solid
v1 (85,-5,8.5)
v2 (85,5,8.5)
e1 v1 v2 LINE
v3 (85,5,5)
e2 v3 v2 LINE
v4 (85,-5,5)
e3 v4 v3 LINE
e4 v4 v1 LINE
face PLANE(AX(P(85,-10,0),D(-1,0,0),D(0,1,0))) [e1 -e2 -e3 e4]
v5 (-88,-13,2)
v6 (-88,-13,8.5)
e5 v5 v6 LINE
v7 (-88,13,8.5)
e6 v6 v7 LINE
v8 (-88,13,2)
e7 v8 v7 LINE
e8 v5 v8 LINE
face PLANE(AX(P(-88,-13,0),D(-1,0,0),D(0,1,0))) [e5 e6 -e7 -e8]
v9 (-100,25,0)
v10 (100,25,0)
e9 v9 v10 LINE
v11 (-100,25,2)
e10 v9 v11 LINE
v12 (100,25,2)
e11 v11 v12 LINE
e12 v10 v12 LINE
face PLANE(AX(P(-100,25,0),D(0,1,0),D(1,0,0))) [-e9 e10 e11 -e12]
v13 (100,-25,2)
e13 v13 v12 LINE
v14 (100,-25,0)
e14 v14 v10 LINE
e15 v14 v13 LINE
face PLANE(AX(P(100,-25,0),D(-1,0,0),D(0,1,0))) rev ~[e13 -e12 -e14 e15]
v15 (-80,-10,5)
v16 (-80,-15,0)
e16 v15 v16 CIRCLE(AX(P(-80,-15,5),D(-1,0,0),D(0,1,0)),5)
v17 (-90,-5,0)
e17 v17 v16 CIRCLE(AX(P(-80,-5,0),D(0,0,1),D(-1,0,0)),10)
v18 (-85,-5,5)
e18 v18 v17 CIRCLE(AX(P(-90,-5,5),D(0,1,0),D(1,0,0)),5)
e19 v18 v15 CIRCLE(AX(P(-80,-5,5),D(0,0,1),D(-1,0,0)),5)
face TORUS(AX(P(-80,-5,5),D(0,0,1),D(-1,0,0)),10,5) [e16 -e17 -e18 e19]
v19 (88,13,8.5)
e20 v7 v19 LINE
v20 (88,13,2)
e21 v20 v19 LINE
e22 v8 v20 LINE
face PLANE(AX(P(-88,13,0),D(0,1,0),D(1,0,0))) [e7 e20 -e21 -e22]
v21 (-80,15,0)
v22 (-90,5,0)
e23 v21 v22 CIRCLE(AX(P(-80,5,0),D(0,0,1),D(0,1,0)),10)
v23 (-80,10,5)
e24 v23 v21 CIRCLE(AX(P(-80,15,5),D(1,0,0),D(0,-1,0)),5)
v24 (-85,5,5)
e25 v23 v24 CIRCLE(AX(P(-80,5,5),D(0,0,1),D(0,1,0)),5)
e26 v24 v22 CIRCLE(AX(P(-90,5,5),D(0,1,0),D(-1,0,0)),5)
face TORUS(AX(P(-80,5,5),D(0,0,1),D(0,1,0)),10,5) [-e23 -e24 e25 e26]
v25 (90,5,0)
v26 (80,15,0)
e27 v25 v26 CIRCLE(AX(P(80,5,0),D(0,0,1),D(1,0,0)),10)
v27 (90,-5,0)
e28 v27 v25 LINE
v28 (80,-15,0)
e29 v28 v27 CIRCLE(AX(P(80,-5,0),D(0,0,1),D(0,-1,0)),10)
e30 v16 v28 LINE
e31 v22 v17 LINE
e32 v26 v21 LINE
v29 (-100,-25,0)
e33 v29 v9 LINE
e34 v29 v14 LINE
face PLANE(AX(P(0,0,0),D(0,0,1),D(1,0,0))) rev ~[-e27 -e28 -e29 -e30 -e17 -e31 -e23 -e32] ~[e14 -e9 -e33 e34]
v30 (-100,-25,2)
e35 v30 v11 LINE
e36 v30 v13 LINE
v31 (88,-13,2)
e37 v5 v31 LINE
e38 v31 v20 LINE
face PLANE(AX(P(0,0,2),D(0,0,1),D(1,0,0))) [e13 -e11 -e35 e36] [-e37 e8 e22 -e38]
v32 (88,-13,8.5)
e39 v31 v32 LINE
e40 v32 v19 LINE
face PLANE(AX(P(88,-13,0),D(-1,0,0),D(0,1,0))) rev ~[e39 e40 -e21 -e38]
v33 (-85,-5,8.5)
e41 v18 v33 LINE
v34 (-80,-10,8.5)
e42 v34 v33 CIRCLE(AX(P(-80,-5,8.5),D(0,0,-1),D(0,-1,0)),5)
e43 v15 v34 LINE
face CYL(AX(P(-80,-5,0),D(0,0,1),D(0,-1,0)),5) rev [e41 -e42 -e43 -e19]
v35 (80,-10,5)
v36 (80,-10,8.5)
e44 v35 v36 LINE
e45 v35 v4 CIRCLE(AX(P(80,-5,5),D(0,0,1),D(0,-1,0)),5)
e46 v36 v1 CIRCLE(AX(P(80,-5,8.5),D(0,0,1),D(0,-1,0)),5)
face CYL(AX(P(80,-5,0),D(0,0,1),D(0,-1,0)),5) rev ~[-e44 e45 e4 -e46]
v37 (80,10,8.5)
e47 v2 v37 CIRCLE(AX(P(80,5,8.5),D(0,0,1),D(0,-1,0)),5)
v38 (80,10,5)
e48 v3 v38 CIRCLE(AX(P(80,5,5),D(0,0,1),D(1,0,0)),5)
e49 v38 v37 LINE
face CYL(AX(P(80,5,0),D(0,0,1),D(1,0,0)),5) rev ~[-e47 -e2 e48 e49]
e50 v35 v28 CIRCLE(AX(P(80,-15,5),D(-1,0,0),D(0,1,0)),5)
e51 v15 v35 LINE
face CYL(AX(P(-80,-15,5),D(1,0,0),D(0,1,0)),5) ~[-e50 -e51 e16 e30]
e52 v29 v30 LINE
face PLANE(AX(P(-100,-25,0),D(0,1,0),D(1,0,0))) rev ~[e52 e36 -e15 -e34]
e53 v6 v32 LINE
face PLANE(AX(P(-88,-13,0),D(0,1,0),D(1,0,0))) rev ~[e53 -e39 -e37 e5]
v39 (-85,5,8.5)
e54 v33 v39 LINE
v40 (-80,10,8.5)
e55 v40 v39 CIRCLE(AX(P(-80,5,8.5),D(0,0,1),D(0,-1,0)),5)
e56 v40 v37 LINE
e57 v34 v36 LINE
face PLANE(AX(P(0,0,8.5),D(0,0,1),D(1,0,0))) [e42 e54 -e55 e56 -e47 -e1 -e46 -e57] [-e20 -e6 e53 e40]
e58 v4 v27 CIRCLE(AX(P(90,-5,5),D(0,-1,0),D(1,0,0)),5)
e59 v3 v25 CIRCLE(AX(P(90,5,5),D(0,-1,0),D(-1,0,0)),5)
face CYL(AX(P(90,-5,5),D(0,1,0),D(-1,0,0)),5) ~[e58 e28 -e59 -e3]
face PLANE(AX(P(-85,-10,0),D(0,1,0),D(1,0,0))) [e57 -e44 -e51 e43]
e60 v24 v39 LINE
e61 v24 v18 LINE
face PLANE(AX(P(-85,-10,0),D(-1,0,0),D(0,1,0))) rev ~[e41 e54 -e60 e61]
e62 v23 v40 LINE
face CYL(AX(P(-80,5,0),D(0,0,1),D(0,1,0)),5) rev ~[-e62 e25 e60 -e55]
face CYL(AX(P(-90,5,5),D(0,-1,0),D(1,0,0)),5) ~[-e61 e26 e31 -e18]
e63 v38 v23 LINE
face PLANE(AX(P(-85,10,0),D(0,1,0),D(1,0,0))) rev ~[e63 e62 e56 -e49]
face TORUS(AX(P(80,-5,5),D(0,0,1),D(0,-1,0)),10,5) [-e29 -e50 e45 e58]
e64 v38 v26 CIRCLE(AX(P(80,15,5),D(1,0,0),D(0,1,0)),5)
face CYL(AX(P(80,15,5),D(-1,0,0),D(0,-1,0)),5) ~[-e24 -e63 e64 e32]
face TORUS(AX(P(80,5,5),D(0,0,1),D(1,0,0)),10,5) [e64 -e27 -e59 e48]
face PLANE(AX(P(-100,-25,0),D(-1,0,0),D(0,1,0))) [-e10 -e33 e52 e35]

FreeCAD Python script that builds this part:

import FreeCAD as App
import Part
import Sketcher
from FreeCAD import Vector


def edges_at(feature, points):
    """Names of the edges that pass closest to the given points."""
    edges = feature.Shape.Edges
    near = lambda p: min(range(len(edges)), key=lambda i: edges[i].distToShape(Part.Vertex(*p))[0])
    return sorted({f"Edge{near(p) + 1}" for p in points})


def add_polygon(sketch, points):
    """Adds a closed chain of lines whose ends are joined by coincident constraints."""
    first, n = sketch.GeometryCount, len(points)
    for a, b in zip(points, points[1:] + points[:1]):
        sketch.addGeometry(Part.LineSegment(App.Vector(*a, 0), App.Vector(*b, 0)), False)
    for i in range(n):
        sketch.addConstraint(Sketcher.Constraint("Coincident", first + i, 2, first + (i + 1) % n, 1))

doc = App.newDocument("Part")
body = doc.addObject("PartDesign::Body", "Body")

# Sketch on XY plane
sketch1 = body.newObject("Sketcher::SketchObject", "Sketch")
sketch1.AttachmentSupport = (doc.getObject("XY_Plane"), [""])
sketch1.MapMode = "FlatFace"
add_polygon(sketch1, [(-100, 25), (-100, -25), (100, -25), (100, 25)])  # lines 0-3
add_polygon(sketch1, [(88, -13), (-88, -13), (-88, 13), (88, 13)])  # lines 4-7
sketch1.addConstraint([
    Sketcher.Constraint("Vertical", 0),
    Sketcher.Constraint("Horizontal", 1),
    Sketcher.Constraint("Vertical", 2),
    Sketcher.Constraint("Horizontal", 3),
    Sketcher.Constraint("Horizontal", 4),
    Sketcher.Constraint("Vertical", 5),
    Sketcher.Constraint("Horizontal", 6),
    Sketcher.Constraint("Vertical", 7),
    Sketcher.Constraint("Symmetric", 0, 2, 2, 2, -1, 1),
    Sketcher.Constraint("Symmetric", 4, 2, 6, 2, -1, 1),
    Sketcher.Constraint("DistanceX", 1, 1, 1, 2, 200.0),
    Sketcher.Constraint("DistanceX", 4, 2, 4, 1, 176.0),
    Sketcher.Constraint("DistanceY", 0, 2, 0, 1, 50.0),
    Sketcher.Constraint("DistanceY", 5, 1, 5, 2, 26.0),
])
pad1 = body.newObject("PartDesign::Pad", "Pad")
pad1.Profile = sketch1
pad1.Length = 2

# Sketch on XY plane
sketch2 = body.newObject("Sketcher::SketchObject", "Sketch001")
sketch2.AttachmentSupport = (doc.getObject("XY_Plane"), [""])
sketch2.MapMode = "FlatFace"
add_polygon(sketch2, [(-88, 13), (-88, -13), (88, -13), (88, 13)])  # lines 0-3
add_polygon(sketch2, [(85, -10), (-85, -10), (-85, 10), (85, 10)])  # lines 4-7
sketch2.addConstraint([
    Sketcher.Constraint("Vertical", 0),
    Sketcher.Constraint("Horizontal", 1),
    Sketcher.Constraint("Vertical", 2),
    Sketcher.Constraint("Horizontal", 3),
    Sketcher.Constraint("Horizontal", 4),
    Sketcher.Constraint("Vertical", 5),
    Sketcher.Constraint("Horizontal", 6),
    Sketcher.Constraint("Vertical", 7),
    Sketcher.Constraint("Symmetric", 0, 2, 2, 2, -1, 1),
    Sketcher.Constraint("Symmetric", 4, 2, 6, 2, -1, 1),
    Sketcher.Constraint("DistanceX", 1, 1, 1, 2, 176.0),
    Sketcher.Constraint("DistanceX", 4, 2, 4, 1, 170.0),
    Sketcher.Constraint("DistanceY", 0, 2, 0, 1, 26.0),
    Sketcher.Constraint("DistanceY", 5, 1, 5, 2, 20.0),
])
pad2 = body.newObject("PartDesign::Pad", "Pad001")
pad2.Profile = sketch2
pad2.Length = 8.5
doc.recompute()

fillet = body.newObject("PartDesign::Fillet", "Fillet")
fillet.Base = (pad2, edges_at(pad2, [
    (-85, -10, 4.25),
    (-85, 10, 4.25),
    (85, -10, 4.25),
    (85, 10, 4.25),
]))
fillet.Radius = 5
doc.recompute()

fillet2 = body.newObject("PartDesign::Fillet", "Fillet001")
fillet2.Base = (fillet, edges_at(fillet, [(0, -10, 0)]))
fillet2.Radius = 5

doc.recompute()
